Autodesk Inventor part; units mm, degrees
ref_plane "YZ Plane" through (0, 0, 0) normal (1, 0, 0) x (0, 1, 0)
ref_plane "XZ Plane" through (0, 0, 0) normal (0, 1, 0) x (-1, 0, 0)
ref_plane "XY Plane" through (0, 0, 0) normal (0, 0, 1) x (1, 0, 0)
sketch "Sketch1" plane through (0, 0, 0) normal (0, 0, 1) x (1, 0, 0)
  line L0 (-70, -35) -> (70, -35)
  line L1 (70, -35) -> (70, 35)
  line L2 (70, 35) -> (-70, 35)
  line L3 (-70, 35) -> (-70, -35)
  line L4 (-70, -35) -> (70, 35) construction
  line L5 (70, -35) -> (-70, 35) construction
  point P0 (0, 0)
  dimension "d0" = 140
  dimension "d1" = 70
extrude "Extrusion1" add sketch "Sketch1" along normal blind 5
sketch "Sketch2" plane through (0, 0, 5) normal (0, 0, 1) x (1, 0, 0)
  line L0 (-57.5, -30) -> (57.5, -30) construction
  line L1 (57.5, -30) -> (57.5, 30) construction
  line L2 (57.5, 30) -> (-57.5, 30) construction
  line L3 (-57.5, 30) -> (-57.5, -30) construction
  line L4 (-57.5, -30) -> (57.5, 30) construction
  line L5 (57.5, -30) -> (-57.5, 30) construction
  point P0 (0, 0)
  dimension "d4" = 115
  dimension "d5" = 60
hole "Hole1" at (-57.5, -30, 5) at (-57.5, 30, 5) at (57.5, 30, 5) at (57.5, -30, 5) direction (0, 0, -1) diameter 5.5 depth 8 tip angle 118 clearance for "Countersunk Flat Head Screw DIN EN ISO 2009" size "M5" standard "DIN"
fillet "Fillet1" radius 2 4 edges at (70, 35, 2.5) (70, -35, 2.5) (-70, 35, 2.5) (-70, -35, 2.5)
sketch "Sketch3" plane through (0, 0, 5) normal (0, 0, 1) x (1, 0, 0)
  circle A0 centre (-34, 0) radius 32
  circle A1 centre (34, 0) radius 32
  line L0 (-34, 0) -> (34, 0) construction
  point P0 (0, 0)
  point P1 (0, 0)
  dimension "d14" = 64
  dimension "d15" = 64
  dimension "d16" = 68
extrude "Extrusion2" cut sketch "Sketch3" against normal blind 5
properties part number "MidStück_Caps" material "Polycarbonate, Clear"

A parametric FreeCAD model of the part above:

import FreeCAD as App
import Part
import Sketcher
Q = App.Units.Quantity


def edges_at(feature, points):
    """Names of the edges that pass closest to the given points."""
    edges = feature.Shape.Edges
    near = lambda p: min(range(len(edges)), key=lambda i: edges[i].distToShape(Part.Vertex(*p))[0])
    return sorted({f"Edge{near(p) + 1}" for p in points})


def add_polygon(sketch, points):
    """Adds a closed chain of lines whose ends are joined by coincident constraints."""
    first, n = sketch.GeometryCount, len(points)
    for a, b in zip(points, points[1:] + points[:1]):
        sketch.addGeometry(Part.LineSegment(App.Vector(*a, 0), App.Vector(*b, 0)), False)
    for i in range(n):
        sketch.addConstraint(Sketcher.Constraint("Coincident", first + i, 2, first + (i + 1) % n, 1))

doc = App.newDocument("Part")
body = doc.addObject("PartDesign::Body", "Body")

sketch1 = body.newObject("Sketcher::SketchObject", "Sketch")
sketch1.AttachmentSupport = (doc.getObject("XY_Plane"), [""])
sketch1.MapMode = "FlatFace"
add_polygon(sketch1, [(-70, 35), (-70, -35), (70, -35), (70, 35)])
sketch1.addConstraint(Sketcher.Constraint("Vertical", 0))
sketch1.addConstraint(Sketcher.Constraint("Horizontal", 1))
sketch1.addConstraint(Sketcher.Constraint("Vertical", 2))
sketch1.addConstraint(Sketcher.Constraint("Horizontal", 3))
sketch1.addConstraint(Sketcher.Constraint("Symmetric", 0, 2, 2, 2, -1, 1))
sketch1.addConstraint(Sketcher.Constraint("DistanceX", 1, 1, 1, 2, Q("140 mm")))
sketch1.addConstraint(Sketcher.Constraint("DistanceY", 0, 2, 0, 1, Q("70 mm")))
pad1 = body.newObject("PartDesign::Pad", "Pad")
pad1.Profile = sketch1
pad1.Length = 5

sketch2 = body.newObject("Sketcher::SketchObject", "Sketch001")
sketch2.AttachmentSupport = (doc.getObject("XY_Plane"), [""])
sketch2.MapMode = "FlatFace"
sketch2.AttachmentOffset = App.Placement(App.Vector(0, 0, 5), App.Rotation())
sketch2.addGeometry(Part.Circle(App.Vector(-57.5, -30, 0), App.Vector(0, 0, 1), 2.75), False)
sketch2.addGeometry(Part.Circle(App.Vector(-57.5, 30, 0), App.Vector(0, 0, 1), 2.75), False)
sketch2.addGeometry(Part.Circle(App.Vector(57.5, 30, 0), App.Vector(0, 0, 1), 2.75), False)
sketch2.addGeometry(Part.Circle(App.Vector(57.5, -30, 0), App.Vector(0, 0, 1), 2.75), False)
sketch2.addConstraint(Sketcher.Constraint("Equal", 0, 1))
sketch2.addConstraint(Sketcher.Constraint("Equal", 1, 2))
sketch2.addConstraint(Sketcher.Constraint("Equal", 2, 3))
sketch2.addConstraint(Sketcher.Constraint("Symmetric", 0, 3, 2, 3, -1, 1))
sketch2.addConstraint(Sketcher.Constraint("Symmetric", 1, 3, 3, 3, -1, 1))
sketch2.addConstraint(Sketcher.Constraint("Symmetric", 1, 3, 2, 3, -2))
sketch2.addConstraint(Sketcher.Constraint("Diameter", 0, Q("5.5 mm")))
sketch2.addConstraint(Sketcher.Constraint("DistanceY", 0, 3, -1, 1, Q("30 mm")))
sketch2.addConstraint(Sketcher.Constraint("DistanceX", 1, 3, 2, 3, Q("115 mm")))
doc.recompute()
hole = body.newObject("PartDesign::Hole", "Hole")
hole.Profile = sketch2
hole.ThreadType = "None"
hole.Diameter = 5.5
hole.DepthType = "Dimension"
hole.Depth = 8
hole.DrillPoint = "Angled"
hole.DrillPointAngle = 118
doc.recompute()

fillet = body.newObject("PartDesign::Fillet", "Fillet")
fillet.Base = (hole, edges_at(hole, [
    (70, 35, 2.5),
    (70, -35, 2.5),
    (-70, 35, 2.5),
    (-70, -35, 2.5),
]))
fillet.Radius = 2

sketch3 = body.newObject("Sketcher::SketchObject", "Sketch002")
sketch3.AttachmentSupport = (doc.getObject("XY_Plane"), [""])
sketch3.MapMode = "FlatFace"
sketch3.AttachmentOffset = App.Placement(App.Vector(0, 0, 5), App.Rotation())
sketch3.addGeometry(Part.Circle(App.Vector(-34, 0, 0), App.Vector(0, 0, 1), 32), False)
sketch3.addGeometry(Part.Circle(App.Vector(34, 0, 0), App.Vector(0, 0, 1), 32), False)
sketch3.addConstraint(Sketcher.Constraint("Equal", 0, 1))
sketch3.addConstraint(Sketcher.Constraint("Symmetric", 0, 3, 1, 3, -1, 1))
sketch3.addConstraint(Sketcher.Constraint("PointOnObject", 0, 3, -1))
sketch3.addConstraint(Sketcher.Constraint("Diameter", 0, Q("64 mm")))
sketch3.addConstraint(Sketcher.Constraint("DistanceX", 0, 3, 1, 3, Q("68 mm")))
pocket1 = body.newObject("PartDesign::Pocket", "Pocket")
pocket1.Profile = sketch3
pocket1.Length = 5

doc.recompute()
